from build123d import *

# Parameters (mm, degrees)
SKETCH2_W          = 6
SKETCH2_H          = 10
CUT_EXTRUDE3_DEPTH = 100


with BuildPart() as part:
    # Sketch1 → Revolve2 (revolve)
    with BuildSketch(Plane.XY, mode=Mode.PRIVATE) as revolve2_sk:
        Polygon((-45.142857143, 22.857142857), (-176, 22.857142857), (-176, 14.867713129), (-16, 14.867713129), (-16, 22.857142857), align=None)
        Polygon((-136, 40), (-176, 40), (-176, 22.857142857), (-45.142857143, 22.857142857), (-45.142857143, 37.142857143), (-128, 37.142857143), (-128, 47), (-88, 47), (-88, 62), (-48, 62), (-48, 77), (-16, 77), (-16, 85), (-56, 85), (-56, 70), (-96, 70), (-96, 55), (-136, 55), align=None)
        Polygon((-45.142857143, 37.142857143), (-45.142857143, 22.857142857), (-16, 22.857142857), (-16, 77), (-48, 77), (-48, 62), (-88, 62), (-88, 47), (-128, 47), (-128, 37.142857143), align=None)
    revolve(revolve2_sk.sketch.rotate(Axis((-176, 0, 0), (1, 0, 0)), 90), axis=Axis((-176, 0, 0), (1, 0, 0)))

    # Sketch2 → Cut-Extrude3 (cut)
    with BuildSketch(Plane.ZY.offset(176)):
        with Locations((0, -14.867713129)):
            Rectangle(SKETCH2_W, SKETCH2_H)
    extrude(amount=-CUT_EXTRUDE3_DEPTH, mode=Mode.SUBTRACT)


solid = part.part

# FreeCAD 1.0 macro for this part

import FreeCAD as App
import Part
import Sketcher


def add_polygon(sketch, points):
    """Adds a closed chain of lines whose ends are joined by coincident constraints."""
    first, n = sketch.GeometryCount, len(points)
    for a, b in zip(points, points[1:] + points[:1]):
        sketch.addGeometry(Part.LineSegment(App.Vector(*a, 0), App.Vector(*b, 0)), False)
    for i in range(n):
        sketch.addConstraint(Sketcher.Constraint("Coincident", first + i, 2, first + (i + 1) % n, 1))

doc = App.newDocument("Part")
body = doc.addObject("PartDesign::Body", "Body")

sketch1 = doc.addObject("Sketcher::SketchObject", "Sketch")
body.addObject(sketch1)
sketch1.AttachmentSupport = (doc.XY_Plane, [""])
sketch1.MapMode = "FlatFace"
add_polygon(sketch1, [(-176, 15), (-16, 15), (-16, 85), (-56, 85), (-56, 70), (-96, 70), (-96, 55), (-136, 55), (-136, 40), (-176, 40)])
sketch1.addConstraint([
    Sketcher.Constraint("Horizontal", 0),
    Sketcher.Constraint("Vertical", 1),
    Sketcher.Constraint("Horizontal", 2),
    Sketcher.Constraint("Vertical", 3),
    Sketcher.Constraint("Horizontal", 4),
    Sketcher.Constraint("Vertical", 5),
    Sketcher.Constraint("Horizontal", 6),
    Sketcher.Constraint("Vertical", 7),
    Sketcher.Constraint("Horizontal", 8),
    Sketcher.Constraint("Vertical", 9),
    Sketcher.Constraint("Equal", 2, 4),
    Sketcher.Constraint("Equal", 4, 6),
    Sketcher.Constraint("Equal", 6, 8),
    Sketcher.Constraint("Equal", 3, 5),
    Sketcher.Constraint("Equal", 5, 7),
    Sketcher.Constraint("DistanceX", 0, 1, 0, 2, 160.0),
    Sketcher.Constraint("DistanceY", 3, 2, 3, 1, 15.0),
    Sketcher.Constraint("DistanceX", 0, 2, -1, 1, 16.0),
    Sketcher.Constraint("DistanceY", -1, 1, 1, 2, 85.0),
    Sketcher.Constraint("DistanceY", 1, 1, 1, 2, 70.132287),
])
revolution = doc.addObject("PartDesign::Revolution", "Revolution")
body.addObject(revolution)
revolution.Profile = sketch1
revolution.ReferenceAxis = (sketch1, ["H_Axis"])
revolution.Angle = 360

sketch2 = doc.addObject("Sketcher::SketchObject", "Sketch001")
body.addObject(sketch2)
sketch2.AttachmentSupport = (doc.YZ_Plane, [""])
sketch2.MapMode = "FlatFace"
sketch2.AttachmentOffset = App.Placement(App.Vector(0, 0, -176), App.Rotation())
add_polygon(sketch2, [(-10, -3), (-20, -3), (-20, 3), (-10, 3)])
sketch2.addConstraint([
    Sketcher.Constraint("Horizontal", 0),
    Sketcher.Constraint("Vertical", 1),
    Sketcher.Constraint("Horizontal", 2),
    Sketcher.Constraint("Vertical", 3),
    Sketcher.Constraint("DistanceX", 0, 2, 0, 1, 10.0),
    Sketcher.Constraint("DistanceY", 1, 1, 1, 2, 6.0),
    Sketcher.Constraint("DistanceY", 0, 2, -1, 1, 3.0),
    Sketcher.Constraint("DistanceX", 0, 2, -1, 1, 19.867713),
])
pocket1 = doc.addObject("PartDesign::Pocket", "Pocket")
body.addObject(pocket1)
pocket1.Profile = sketch2
pocket1.Length = 100
pocket1.Reversed = True

doc.recompute()
